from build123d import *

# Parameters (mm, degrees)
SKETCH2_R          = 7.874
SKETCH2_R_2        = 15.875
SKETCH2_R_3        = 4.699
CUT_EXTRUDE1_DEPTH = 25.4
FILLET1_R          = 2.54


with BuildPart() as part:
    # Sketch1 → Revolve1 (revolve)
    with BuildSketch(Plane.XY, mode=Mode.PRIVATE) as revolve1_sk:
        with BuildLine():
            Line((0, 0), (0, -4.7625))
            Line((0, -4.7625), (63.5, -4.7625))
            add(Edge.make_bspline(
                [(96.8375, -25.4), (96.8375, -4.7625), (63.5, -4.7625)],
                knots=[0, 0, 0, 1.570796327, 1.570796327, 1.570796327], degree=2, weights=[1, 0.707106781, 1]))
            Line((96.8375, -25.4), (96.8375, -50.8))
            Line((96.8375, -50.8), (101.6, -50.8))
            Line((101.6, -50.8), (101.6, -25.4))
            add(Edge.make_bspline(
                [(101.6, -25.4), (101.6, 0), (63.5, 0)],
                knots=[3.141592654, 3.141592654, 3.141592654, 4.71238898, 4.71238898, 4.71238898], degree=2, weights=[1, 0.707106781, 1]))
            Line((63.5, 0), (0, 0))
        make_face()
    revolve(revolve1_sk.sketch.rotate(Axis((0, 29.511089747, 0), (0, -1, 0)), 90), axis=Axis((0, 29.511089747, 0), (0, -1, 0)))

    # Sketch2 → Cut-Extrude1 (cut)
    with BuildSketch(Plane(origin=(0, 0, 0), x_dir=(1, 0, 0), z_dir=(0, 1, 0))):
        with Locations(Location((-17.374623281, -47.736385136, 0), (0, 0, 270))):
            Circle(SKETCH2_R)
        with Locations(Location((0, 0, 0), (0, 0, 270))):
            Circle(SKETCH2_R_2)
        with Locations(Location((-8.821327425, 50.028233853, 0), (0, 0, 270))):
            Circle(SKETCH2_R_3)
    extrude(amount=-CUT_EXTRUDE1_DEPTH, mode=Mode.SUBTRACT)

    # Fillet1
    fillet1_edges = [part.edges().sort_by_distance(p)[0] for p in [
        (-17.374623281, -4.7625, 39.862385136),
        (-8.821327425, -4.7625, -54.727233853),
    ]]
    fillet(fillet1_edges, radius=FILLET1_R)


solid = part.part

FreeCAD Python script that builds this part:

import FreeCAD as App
import Part
import Sketcher
Q = App.Units.Quantity


def edges_at(feature, points):
    """Names of the edges that pass closest to the given points."""
    edges = feature.Shape.Edges
    near = lambda p: min(range(len(edges)), key=lambda i: edges[i].distToShape(Part.Vertex(*p))[0])
    return sorted({f"Edge{near(p) + 1}" for p in points})

doc = App.newDocument("Part")
body = doc.addObject("PartDesign::Body", "Body")

sketch1 = body.newObject("Sketcher::SketchObject", "Sketch")
sketch1.AttachmentSupport = (doc.getObject("XY_Plane"), [""])
sketch1.MapMode = "FlatFace"
sketch1.addGeometry([
    Part.LineSegment(App.Vector(0, 0, 0), App.Vector(0, -4.7625, 0)),
    Part.LineSegment(App.Vector(0, -4.7625, 0), App.Vector(63.5, -4.7625, 0)),
    Part.BSplineCurve([App.Vector(96.8375, -25.4, 0), App.Vector(96.8375, -4.7625, 0), App.Vector(63.5, -4.7625, 0)], [3, 3], [0, 1.570796327], False, 2, [1, 0.707106781, 1], False),
    Part.LineSegment(App.Vector(96.8375, -25.4, 0), App.Vector(96.8375, -50.8, 0)),
    Part.LineSegment(App.Vector(96.8375, -50.8, 0), App.Vector(101.6, -50.8, 0)),
    Part.LineSegment(App.Vector(101.6, -50.8, 0), App.Vector(101.6, -25.4, 0)),
    Part.BSplineCurve([App.Vector(101.6, -25.4, 0), App.Vector(101.6, 0, 0), App.Vector(63.5, 0, 0)], [3, 3], [3.141592654, 4.71238898], False, 2, [1, 0.707106781, 1], False),
    Part.LineSegment(App.Vector(63.5, 0, 0), App.Vector(0, 0, 0)),
], False)
sketch1.addConstraint([
    Sketcher.Constraint("Block", 2),
    Sketcher.Constraint("Block", 6),
    Sketcher.Constraint("Coincident", 0, 2, 1, 1),
    Sketcher.Constraint("Coincident", 1, 2, 2, 2),
    Sketcher.Constraint("Coincident", 2, 1, 3, 1),
    Sketcher.Constraint("Coincident", 3, 2, 4, 1),
    Sketcher.Constraint("Coincident", 4, 2, 5, 1),
    Sketcher.Constraint("Coincident", 5, 2, 6, 1),
    Sketcher.Constraint("Coincident", 6, 2, 7, 1),
    Sketcher.Constraint("Coincident", 7, 2, 0, 1),
    Sketcher.Constraint("Vertical", 0),
    Sketcher.Constraint("Horizontal", 1),
    Sketcher.Constraint("Vertical", 3),
    Sketcher.Constraint("Horizontal", 4),
    Sketcher.Constraint("Vertical", 5),
    Sketcher.Constraint("Horizontal", 7),
    Sketcher.Constraint("PointOnObject", 0, 2, -2),
    Sketcher.Constraint("DistanceY", 3, 2, 3, 1, Q("1 in")),
])
revolution = body.newObject("PartDesign::Revolution", "Revolution")
revolution.Profile = sketch1
revolution.ReferenceAxis = (sketch1, ["V_Axis"])
revolution.Angle = 360

sketch2 = body.newObject("Sketcher::SketchObject", "Sketch001")
sketch2.AttachmentSupport = (doc.getObject("XZ_Plane"), [""])
sketch2.MapMode = "FlatFace"
sketch2.addGeometry([
    Part.Circle(App.Vector(-17.374623, 47.736385, 0), App.Vector(0, 0, 1), 7.874),
    Part.Circle(App.Vector(0, 0, 0), App.Vector(0, 0, 1), 15.875),
    Part.Circle(App.Vector(-8.821327, -50.028234, 0), App.Vector(0, 0, 1), 4.699),
], False)
sketch2.addConstraint([
    Sketcher.Constraint("Coincident", 1, 3, -1, 1),
    Sketcher.Constraint("Diameter", 0, Q("0.62 in")),
    Sketcher.Constraint("Diameter", 1, Q("1.25 in")),
    Sketcher.Constraint("Diameter", 2, Q("0.37 in")),
    Sketcher.Constraint("DistanceY", 2, 3, 0, 3, 97.764619),
    Sketcher.Constraint("DistanceX", 0, 3, -1, 1, 17.374623),
    Sketcher.Constraint("DistanceY", -1, 1, 0, 3, 47.736385),
    Sketcher.Constraint("DistanceX", 2, 3, -1, 1, 8.821327),
])
pocket1 = body.newObject("PartDesign::Pocket", "Pocket")
pocket1.Profile = sketch2
pocket1.Length = Q("1 in")
pocket1.Reversed = True
doc.recompute()

fillet = body.newObject("PartDesign::Fillet", "Fillet")
fillet.Base = (pocket1, edges_at(pocket1, [(-17.375, -4.763, 39.862), (-8.821, -4.763, -54.727)]))
fillet.Radius = Q("0.1 in")

doc.recompute()
